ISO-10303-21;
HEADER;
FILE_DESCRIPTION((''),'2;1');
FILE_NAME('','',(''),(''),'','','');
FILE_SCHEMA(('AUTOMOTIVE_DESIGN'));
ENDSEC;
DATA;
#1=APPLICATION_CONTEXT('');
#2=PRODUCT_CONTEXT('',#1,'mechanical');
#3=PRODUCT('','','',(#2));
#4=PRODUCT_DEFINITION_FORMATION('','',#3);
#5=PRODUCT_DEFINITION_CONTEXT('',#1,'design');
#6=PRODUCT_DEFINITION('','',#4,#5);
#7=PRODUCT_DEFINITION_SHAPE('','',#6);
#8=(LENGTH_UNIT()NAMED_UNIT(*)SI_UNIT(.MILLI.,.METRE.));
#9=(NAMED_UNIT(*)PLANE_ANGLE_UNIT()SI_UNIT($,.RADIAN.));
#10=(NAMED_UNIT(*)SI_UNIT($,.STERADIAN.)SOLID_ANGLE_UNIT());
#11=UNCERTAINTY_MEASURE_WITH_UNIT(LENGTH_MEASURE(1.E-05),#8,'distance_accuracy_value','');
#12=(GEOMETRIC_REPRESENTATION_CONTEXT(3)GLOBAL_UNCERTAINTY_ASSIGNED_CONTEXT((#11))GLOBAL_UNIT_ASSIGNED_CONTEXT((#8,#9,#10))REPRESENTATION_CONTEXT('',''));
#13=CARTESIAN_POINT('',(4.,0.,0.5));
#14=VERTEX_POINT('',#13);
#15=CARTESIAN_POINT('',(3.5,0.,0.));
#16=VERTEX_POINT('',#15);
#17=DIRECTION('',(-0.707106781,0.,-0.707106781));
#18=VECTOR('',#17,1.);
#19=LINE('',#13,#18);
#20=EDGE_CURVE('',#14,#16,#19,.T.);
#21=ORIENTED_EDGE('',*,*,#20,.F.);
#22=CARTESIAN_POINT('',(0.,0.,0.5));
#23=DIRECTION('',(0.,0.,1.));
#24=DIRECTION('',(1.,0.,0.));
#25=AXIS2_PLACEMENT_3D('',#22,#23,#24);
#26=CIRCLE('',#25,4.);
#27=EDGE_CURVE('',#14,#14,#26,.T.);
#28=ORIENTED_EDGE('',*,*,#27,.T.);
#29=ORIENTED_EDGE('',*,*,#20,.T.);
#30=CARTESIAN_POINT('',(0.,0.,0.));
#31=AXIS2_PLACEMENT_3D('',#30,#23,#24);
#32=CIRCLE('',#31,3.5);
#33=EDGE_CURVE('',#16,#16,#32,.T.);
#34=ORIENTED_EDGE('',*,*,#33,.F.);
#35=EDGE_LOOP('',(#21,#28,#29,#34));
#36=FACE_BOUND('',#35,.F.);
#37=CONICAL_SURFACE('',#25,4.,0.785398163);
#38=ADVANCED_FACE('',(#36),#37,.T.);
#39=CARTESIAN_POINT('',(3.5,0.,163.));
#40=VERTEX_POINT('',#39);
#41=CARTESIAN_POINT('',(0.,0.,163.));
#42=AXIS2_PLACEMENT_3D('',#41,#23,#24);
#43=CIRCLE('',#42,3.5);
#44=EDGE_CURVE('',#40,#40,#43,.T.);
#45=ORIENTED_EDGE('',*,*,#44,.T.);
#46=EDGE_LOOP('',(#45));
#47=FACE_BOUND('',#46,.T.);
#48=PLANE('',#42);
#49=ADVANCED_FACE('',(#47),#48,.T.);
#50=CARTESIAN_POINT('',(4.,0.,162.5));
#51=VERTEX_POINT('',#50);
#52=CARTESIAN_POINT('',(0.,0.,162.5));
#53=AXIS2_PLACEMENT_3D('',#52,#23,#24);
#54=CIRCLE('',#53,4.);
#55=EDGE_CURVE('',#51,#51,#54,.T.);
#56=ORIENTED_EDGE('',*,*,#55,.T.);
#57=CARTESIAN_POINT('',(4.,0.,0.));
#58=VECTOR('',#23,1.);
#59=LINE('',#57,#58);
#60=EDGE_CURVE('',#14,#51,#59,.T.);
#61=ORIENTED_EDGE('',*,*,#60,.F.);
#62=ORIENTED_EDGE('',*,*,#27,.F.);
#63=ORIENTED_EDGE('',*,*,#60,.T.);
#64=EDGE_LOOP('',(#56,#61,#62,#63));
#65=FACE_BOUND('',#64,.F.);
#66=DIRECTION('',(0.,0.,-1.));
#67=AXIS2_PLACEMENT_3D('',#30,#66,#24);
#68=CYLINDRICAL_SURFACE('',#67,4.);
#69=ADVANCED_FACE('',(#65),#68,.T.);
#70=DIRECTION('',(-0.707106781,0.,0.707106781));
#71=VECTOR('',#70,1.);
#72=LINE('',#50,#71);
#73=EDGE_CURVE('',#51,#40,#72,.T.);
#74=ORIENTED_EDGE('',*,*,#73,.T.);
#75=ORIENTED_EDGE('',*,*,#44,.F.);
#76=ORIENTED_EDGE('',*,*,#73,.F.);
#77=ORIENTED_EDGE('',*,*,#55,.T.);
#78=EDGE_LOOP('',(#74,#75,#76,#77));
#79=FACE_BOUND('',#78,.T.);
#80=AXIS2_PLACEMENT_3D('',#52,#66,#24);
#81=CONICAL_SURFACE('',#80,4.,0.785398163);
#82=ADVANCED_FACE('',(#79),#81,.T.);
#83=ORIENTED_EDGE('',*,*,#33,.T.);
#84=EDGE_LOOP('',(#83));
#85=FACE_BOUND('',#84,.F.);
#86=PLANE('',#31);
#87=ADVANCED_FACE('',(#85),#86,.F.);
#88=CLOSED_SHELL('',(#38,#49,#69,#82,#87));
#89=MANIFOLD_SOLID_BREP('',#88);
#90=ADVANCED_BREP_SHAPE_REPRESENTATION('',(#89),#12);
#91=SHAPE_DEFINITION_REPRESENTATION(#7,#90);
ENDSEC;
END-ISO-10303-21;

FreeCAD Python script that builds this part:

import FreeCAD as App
import Part
import Sketcher

V = App.Vector


def edges_at(feature, points):
    """Names of the edges that pass closest to the given points."""
    edges = feature.Shape.Edges
    near = lambda p: min(range(len(edges)), key=lambda i: edges[i].distToShape(Part.Vertex(*p))[0])
    return sorted({f"Edge{near(p) + 1}" for p in points})

doc = App.newDocument("Part")
params = doc.addObject("Spreadsheet::Sheet", "Params")
for row, (alias, value) in enumerate([
    ("sketch1_diameter", "8 mm"),
    ("pad1_length", "163 mm"),
    ("chamfer_size", "0.5 mm"),
], start=1):
    params.set(f"A{row}", alias)
    params.set(f"B{row}", "=" + value)
    params.setAlias(f"B{row}", alias)

body = doc.addObject("PartDesign::Body", "Body")

sketch1 = body.newObject("Sketcher::SketchObject", "Sketch")
sketch1.AttachmentSupport = (doc.getObject("XY_Plane"), [""])
sketch1.MapMode = "FlatFace"
sketch1.addGeometry(Part.Circle(V(0, 0, 0), V(0, 0, 1), 4), False)
sketch1.addConstraint([
    Sketcher.Constraint("Coincident", 0, 3, -1, 1),
    Sketcher.Constraint("Diameter", 0, 8.0),
])
sketch1.setExpression("Constraints[1]", "Params.sketch1_diameter")
pad1 = body.newObject("PartDesign::Pad", "Pad")
pad1.Profile = sketch1
pad1.setExpression("Length", "Params.pad1_length")
doc.recompute()

chamfer = body.newObject("PartDesign::Chamfer", "Chamfer")
chamfer.Base = (pad1, edges_at(pad1, [(-4, 0, 163), (-4, 0, 0)]))
chamfer.setExpression("Size", "Params.chamfer_size")

doc.recompute()
